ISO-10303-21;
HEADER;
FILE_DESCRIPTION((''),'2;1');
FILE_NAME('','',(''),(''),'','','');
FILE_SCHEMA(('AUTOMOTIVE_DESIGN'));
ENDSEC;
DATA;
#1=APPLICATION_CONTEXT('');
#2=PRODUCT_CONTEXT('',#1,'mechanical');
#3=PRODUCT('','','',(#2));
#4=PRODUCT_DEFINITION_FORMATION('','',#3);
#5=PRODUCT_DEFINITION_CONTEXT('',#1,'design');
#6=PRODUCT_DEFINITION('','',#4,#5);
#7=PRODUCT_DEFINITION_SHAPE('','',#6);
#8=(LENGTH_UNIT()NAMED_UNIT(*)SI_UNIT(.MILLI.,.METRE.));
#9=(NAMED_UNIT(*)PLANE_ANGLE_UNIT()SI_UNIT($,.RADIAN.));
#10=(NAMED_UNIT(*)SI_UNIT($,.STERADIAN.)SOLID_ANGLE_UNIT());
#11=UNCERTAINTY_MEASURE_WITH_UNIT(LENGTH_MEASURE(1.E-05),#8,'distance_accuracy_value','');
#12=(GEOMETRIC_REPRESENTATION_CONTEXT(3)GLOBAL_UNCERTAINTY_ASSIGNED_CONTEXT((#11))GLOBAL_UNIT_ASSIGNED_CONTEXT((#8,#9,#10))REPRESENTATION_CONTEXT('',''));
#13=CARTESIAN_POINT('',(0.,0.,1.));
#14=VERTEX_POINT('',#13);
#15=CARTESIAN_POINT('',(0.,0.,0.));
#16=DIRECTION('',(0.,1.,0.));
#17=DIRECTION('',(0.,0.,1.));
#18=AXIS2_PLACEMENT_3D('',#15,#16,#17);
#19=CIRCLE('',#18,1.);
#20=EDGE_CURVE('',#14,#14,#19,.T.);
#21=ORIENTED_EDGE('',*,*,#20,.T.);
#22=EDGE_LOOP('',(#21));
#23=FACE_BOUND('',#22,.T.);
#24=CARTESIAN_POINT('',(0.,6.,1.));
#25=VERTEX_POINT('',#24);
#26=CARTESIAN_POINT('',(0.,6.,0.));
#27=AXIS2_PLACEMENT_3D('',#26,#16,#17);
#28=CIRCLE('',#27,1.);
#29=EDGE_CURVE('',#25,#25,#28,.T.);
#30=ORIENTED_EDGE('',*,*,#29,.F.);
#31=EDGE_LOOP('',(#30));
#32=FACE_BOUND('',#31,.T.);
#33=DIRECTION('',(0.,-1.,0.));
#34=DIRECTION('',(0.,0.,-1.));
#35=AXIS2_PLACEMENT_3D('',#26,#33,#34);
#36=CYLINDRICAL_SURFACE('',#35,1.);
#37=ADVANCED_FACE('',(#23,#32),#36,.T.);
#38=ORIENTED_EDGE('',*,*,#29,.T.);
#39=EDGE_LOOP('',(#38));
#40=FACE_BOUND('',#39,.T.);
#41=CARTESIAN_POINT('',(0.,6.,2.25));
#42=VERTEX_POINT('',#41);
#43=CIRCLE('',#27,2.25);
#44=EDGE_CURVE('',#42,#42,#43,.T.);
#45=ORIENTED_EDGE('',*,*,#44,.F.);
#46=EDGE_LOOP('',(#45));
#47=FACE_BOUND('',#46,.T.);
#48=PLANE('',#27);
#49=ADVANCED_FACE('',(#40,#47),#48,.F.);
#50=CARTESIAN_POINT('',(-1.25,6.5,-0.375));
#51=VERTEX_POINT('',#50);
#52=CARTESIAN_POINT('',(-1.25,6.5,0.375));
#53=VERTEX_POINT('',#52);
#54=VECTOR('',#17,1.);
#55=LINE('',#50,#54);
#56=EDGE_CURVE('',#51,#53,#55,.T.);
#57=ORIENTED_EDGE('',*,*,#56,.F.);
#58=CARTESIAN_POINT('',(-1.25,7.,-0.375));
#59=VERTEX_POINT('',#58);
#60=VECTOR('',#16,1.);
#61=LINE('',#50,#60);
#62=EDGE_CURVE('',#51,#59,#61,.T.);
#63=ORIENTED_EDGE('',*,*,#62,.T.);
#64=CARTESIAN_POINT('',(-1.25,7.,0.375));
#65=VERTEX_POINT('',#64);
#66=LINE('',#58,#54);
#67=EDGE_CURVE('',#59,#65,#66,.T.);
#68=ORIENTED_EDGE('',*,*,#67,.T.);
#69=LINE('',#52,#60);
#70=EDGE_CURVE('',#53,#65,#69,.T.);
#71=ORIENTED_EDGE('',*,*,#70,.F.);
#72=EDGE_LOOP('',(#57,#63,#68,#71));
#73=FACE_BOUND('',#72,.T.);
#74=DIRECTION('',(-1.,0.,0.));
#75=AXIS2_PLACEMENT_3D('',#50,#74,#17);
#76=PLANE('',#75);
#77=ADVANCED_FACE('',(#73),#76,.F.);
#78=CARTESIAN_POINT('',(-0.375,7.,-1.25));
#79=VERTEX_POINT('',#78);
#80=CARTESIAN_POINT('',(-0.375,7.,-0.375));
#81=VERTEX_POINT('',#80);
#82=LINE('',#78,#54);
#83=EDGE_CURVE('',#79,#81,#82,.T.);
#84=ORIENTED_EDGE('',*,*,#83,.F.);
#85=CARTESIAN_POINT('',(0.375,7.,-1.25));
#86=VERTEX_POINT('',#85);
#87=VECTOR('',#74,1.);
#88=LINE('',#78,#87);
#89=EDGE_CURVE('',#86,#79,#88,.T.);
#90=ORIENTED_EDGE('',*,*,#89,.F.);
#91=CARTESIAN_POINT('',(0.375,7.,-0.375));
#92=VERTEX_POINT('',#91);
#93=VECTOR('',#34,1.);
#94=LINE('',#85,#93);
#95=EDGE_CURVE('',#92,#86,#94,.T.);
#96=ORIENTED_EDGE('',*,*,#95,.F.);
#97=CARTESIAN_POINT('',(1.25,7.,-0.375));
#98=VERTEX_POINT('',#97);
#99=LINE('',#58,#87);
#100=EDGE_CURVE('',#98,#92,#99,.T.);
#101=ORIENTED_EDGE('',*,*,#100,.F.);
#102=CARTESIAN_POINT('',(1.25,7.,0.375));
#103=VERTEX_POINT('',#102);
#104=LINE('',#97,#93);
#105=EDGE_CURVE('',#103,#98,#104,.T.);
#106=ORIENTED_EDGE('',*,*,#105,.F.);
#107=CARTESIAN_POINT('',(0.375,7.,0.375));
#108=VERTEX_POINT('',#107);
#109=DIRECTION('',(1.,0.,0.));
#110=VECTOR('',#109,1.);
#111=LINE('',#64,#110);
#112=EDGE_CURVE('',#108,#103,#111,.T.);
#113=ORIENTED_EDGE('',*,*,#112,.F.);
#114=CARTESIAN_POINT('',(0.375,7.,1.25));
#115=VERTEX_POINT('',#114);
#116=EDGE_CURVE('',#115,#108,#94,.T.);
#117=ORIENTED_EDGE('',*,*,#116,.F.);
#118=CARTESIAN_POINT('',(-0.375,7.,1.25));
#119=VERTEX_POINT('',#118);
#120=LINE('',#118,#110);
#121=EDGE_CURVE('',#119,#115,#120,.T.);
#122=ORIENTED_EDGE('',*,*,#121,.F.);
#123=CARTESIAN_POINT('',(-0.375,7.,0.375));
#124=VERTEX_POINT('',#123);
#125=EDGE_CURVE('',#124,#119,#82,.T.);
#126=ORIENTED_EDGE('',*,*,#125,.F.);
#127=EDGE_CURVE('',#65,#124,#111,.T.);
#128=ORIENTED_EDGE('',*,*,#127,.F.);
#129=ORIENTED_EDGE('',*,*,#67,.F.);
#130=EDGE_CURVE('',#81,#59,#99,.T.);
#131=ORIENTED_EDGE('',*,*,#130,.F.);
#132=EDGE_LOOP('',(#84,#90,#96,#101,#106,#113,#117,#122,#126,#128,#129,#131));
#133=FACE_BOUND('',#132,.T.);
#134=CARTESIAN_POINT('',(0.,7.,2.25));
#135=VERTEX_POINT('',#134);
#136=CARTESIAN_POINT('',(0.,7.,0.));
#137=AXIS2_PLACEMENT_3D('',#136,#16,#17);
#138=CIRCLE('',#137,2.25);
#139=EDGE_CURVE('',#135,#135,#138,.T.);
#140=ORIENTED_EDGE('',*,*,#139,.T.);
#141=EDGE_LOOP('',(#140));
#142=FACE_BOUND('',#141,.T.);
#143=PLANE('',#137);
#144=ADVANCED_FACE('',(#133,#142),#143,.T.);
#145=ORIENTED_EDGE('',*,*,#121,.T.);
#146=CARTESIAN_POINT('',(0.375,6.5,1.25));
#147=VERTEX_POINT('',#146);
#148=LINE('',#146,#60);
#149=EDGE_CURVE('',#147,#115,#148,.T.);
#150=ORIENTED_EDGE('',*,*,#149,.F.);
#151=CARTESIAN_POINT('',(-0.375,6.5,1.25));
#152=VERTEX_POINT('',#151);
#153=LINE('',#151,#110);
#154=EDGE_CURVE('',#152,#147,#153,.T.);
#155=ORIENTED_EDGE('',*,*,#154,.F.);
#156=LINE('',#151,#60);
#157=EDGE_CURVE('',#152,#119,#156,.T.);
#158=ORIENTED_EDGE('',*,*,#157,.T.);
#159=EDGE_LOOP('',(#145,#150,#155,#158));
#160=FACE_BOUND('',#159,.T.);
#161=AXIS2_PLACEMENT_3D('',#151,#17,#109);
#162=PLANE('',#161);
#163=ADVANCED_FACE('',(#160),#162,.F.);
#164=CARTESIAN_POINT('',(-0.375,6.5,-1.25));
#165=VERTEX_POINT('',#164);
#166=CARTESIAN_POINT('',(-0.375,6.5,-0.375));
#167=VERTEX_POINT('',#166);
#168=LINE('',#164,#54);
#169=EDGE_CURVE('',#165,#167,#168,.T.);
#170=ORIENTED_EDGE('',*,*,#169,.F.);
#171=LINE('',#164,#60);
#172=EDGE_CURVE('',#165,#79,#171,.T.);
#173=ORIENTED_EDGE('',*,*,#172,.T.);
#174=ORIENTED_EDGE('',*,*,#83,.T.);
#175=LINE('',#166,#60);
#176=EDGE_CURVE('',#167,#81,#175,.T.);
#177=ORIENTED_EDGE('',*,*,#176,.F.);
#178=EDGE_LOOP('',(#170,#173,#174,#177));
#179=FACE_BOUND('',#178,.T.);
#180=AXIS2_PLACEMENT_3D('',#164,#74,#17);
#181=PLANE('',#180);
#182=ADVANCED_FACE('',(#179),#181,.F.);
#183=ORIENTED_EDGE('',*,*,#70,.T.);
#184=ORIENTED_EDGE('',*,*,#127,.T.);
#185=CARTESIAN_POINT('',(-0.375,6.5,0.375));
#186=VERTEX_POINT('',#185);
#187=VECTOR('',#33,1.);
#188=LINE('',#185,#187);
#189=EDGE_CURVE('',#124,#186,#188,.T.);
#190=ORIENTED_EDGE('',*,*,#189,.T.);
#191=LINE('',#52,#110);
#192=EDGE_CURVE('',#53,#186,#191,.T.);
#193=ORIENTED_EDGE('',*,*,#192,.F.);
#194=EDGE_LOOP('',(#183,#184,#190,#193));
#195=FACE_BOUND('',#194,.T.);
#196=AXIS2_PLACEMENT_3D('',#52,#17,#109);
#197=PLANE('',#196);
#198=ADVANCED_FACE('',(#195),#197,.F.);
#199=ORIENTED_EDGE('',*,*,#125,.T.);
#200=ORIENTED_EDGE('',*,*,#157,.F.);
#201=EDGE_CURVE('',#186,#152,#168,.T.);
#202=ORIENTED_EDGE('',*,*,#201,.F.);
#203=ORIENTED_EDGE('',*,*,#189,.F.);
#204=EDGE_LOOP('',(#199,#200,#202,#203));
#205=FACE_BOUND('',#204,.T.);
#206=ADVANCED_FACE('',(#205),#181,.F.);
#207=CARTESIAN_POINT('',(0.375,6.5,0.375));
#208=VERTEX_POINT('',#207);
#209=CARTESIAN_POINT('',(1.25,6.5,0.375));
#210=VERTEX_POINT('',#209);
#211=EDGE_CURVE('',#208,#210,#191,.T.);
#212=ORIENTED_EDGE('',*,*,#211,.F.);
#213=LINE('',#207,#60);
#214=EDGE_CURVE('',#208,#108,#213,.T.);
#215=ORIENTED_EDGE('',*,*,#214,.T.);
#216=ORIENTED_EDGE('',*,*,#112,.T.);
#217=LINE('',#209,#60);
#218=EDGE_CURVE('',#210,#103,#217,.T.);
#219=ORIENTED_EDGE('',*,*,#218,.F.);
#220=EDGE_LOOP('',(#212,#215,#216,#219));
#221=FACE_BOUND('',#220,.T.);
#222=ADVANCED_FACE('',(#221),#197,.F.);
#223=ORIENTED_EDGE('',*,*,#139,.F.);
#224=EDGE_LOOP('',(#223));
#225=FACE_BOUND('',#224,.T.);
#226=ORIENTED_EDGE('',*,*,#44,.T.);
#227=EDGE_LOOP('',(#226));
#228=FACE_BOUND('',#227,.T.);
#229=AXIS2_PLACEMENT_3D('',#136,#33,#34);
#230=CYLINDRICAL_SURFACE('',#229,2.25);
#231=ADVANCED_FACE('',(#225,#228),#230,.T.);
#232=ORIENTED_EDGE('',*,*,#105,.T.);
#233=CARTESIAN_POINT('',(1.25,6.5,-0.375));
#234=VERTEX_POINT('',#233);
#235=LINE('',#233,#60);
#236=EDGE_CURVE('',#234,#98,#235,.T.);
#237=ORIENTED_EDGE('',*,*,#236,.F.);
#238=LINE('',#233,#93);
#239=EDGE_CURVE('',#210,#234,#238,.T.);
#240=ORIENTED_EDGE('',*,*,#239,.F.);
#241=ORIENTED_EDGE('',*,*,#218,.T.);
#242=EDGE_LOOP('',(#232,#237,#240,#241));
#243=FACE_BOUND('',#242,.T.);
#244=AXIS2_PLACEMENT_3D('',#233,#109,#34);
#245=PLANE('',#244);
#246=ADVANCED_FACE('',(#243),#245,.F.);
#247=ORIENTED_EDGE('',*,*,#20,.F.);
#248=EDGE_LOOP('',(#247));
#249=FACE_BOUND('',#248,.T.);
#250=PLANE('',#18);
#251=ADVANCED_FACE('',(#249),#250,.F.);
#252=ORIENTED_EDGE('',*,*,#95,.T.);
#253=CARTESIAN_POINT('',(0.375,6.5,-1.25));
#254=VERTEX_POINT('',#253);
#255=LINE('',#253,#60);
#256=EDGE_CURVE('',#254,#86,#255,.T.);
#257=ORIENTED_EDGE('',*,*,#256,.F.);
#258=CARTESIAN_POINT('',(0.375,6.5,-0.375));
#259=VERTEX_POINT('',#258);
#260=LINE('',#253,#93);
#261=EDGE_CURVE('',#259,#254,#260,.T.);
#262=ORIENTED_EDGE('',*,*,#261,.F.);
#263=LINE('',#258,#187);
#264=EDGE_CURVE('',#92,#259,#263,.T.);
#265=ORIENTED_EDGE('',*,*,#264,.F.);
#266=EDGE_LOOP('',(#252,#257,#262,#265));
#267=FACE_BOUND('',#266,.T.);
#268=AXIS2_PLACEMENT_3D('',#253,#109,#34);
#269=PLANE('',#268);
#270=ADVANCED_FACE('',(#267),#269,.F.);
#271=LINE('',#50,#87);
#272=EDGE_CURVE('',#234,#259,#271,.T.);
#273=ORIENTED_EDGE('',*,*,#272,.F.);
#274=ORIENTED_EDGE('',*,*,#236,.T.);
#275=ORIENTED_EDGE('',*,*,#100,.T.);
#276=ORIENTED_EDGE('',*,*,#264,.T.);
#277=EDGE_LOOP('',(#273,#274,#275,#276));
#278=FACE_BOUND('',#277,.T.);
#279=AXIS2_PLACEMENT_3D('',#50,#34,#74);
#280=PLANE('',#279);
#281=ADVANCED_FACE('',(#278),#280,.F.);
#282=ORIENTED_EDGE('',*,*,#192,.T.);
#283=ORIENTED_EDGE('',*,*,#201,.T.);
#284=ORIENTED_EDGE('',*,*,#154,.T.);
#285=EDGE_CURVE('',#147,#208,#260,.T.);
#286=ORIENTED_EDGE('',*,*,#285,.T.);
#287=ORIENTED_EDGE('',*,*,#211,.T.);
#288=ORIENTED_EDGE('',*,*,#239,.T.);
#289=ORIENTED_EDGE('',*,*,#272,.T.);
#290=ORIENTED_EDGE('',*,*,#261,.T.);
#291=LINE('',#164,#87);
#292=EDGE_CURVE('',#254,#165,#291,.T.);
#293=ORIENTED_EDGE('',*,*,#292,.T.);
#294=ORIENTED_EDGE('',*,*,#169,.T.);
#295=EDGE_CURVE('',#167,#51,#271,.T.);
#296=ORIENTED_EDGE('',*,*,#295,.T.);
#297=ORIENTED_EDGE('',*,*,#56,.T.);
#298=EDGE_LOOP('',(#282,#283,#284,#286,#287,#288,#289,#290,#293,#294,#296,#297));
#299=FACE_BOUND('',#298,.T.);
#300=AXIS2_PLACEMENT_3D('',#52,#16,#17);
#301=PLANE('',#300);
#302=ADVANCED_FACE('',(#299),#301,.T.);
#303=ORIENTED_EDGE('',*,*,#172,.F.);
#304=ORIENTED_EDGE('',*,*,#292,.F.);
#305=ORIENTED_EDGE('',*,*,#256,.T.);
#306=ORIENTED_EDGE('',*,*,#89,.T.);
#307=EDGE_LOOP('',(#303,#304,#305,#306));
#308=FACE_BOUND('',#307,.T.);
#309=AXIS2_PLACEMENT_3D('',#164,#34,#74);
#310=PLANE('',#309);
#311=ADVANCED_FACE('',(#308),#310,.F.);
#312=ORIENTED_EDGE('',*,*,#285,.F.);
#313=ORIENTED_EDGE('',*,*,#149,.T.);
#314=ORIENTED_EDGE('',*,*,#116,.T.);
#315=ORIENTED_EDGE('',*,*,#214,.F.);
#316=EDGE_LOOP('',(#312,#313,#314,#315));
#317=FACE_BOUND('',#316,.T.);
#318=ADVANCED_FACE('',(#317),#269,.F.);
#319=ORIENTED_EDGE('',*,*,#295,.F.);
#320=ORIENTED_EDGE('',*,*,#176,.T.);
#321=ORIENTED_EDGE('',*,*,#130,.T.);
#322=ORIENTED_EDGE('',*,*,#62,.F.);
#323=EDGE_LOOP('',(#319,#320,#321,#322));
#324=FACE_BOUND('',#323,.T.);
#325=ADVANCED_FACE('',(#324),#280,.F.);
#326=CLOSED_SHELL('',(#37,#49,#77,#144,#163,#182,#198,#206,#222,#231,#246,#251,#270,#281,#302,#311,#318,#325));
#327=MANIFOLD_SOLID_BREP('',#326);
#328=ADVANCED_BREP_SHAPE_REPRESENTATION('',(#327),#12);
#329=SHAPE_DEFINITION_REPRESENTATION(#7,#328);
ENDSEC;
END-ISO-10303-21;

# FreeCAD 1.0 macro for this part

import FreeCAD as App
import Part
import Sketcher
Q = App.Units.Quantity


def add_polygon(sketch, points):
    """Adds a closed chain of lines whose ends are joined by coincident constraints."""
    first, n = sketch.GeometryCount, len(points)
    for a, b in zip(points, points[1:] + points[:1]):
        sketch.addGeometry(Part.LineSegment(App.Vector(*a, 0), App.Vector(*b, 0)), False)
    for i in range(n):
        sketch.addConstraint(Sketcher.Constraint("Coincident", first + i, 2, first + (i + 1) % n, 1))

doc = App.newDocument("Part")
body = doc.addObject("PartDesign::Body", "Body")

# Sketch on XZ plane
sketch1 = body.newObject("Sketcher::SketchObject", "Sketch")
sketch1.AttachmentSupport = (doc.getObject("XZ_Plane"), [""])
sketch1.MapMode = "FlatFace"
sketch1.addGeometry(Part.Circle(App.Vector(0, 0, 0), App.Vector(0, 0, 1), 1), False)
sketch1.addConstraint(Sketcher.Constraint("Coincident", 0, 3, -1, 1))
sketch1.addConstraint(Sketcher.Constraint("Diameter", 0, Q("2 mm")))
pad1 = body.newObject("PartDesign::Pad", "Pad")
pad1.Profile = sketch1
pad1.Length = 6
pad1.Reversed = True

# Sketch on XZ plane
sketch2 = body.newObject("Sketcher::SketchObject", "Sketch001")
sketch2.AttachmentSupport = (doc.getObject("XZ_Plane"), [""])
sketch2.MapMode = "FlatFace"
sketch2.AttachmentOffset = App.Placement(App.Vector(0, 0, -6), App.Rotation())
sketch2.addGeometry(Part.Circle(App.Vector(0, 0, 0), App.Vector(0, 0, 1), 2.2), False)
sketch2.addConstraint(Sketcher.Constraint("Coincident", 0, 3, -1, 1))
sketch2.addConstraint(Sketcher.Constraint("Diameter", 0, Q("4.5 mm")))
pad2 = body.newObject("PartDesign::Pad", "Pad001")
pad2.Profile = sketch2
pad2.Length = 1
pad2.Reversed = True

# Sketch on XZ plane
sketch3 = body.newObject("Sketcher::SketchObject", "Sketch002")
sketch3.AttachmentSupport = (doc.getObject("XZ_Plane"), [""])
sketch3.MapMode = "FlatFace"
sketch3.AttachmentOffset = App.Placement(App.Vector(0, 0, -7), App.Rotation())
add_polygon(sketch3, [(1.2, 0.4), (1.2, -0.4), (-1.2, -0.4), (-1.2, 0.4)])  # lines 0-3
sketch3.addConstraint(Sketcher.Constraint("Vertical", 0))
sketch3.addConstraint(Sketcher.Constraint("Horizontal", 1))
sketch3.addConstraint(Sketcher.Constraint("Vertical", 2))
sketch3.addConstraint(Sketcher.Constraint("Horizontal", 3))
sketch3.addConstraint(Sketcher.Constraint("Symmetric", 0, 2, 2, 2, -1, 1))
sketch3.addConstraint(Sketcher.Constraint("DistanceX", 1, 2, 1, 1, Q("2.5 mm")))
sketch3.addConstraint(Sketcher.Constraint("DistanceY", 0, 2, 0, 1, Q("0.75 mm")))
pocket1 = body.newObject("PartDesign::Pocket", "Pocket")
pocket1.Profile = sketch3
pocket1.Length = 0.5
pocket1.Reversed = True

# Sketch on XZ plane
sketch4 = body.newObject("Sketcher::SketchObject", "Sketch003")
sketch4.AttachmentSupport = (doc.getObject("XZ_Plane"), [""])
sketch4.MapMode = "FlatFace"
sketch4.AttachmentOffset = App.Placement(App.Vector(0, 0, -7), App.Rotation())
add_polygon(sketch4, [(0.4, 1.2), (0.4, -1.2), (-0.4, -1.2), (-0.4, 1.2)])  # lines 0-3
sketch4.addConstraint(Sketcher.Constraint("Vertical", 0))
sketch4.addConstraint(Sketcher.Constraint("Horizontal", 1))
sketch4.addConstraint(Sketcher.Constraint("Vertical", 2))
sketch4.addConstraint(Sketcher.Constraint("Horizontal", 3))
sketch4.addConstraint(Sketcher.Constraint("Symmetric", 0, 2, 2, 2, -1, 1))
sketch4.addConstraint(Sketcher.Constraint("DistanceY", 0, 2, 0, 1, Q("2.5 mm")))
sketch4.addConstraint(Sketcher.Constraint("DistanceX", 1, 2, 1, 1, Q("0.75 mm")))
pocket2 = body.newObject("PartDesign::Pocket", "Pocket001")
pocket2.Profile = sketch4
pocket2.Length = 0.5
pocket2.Reversed = True

doc.recompute()
